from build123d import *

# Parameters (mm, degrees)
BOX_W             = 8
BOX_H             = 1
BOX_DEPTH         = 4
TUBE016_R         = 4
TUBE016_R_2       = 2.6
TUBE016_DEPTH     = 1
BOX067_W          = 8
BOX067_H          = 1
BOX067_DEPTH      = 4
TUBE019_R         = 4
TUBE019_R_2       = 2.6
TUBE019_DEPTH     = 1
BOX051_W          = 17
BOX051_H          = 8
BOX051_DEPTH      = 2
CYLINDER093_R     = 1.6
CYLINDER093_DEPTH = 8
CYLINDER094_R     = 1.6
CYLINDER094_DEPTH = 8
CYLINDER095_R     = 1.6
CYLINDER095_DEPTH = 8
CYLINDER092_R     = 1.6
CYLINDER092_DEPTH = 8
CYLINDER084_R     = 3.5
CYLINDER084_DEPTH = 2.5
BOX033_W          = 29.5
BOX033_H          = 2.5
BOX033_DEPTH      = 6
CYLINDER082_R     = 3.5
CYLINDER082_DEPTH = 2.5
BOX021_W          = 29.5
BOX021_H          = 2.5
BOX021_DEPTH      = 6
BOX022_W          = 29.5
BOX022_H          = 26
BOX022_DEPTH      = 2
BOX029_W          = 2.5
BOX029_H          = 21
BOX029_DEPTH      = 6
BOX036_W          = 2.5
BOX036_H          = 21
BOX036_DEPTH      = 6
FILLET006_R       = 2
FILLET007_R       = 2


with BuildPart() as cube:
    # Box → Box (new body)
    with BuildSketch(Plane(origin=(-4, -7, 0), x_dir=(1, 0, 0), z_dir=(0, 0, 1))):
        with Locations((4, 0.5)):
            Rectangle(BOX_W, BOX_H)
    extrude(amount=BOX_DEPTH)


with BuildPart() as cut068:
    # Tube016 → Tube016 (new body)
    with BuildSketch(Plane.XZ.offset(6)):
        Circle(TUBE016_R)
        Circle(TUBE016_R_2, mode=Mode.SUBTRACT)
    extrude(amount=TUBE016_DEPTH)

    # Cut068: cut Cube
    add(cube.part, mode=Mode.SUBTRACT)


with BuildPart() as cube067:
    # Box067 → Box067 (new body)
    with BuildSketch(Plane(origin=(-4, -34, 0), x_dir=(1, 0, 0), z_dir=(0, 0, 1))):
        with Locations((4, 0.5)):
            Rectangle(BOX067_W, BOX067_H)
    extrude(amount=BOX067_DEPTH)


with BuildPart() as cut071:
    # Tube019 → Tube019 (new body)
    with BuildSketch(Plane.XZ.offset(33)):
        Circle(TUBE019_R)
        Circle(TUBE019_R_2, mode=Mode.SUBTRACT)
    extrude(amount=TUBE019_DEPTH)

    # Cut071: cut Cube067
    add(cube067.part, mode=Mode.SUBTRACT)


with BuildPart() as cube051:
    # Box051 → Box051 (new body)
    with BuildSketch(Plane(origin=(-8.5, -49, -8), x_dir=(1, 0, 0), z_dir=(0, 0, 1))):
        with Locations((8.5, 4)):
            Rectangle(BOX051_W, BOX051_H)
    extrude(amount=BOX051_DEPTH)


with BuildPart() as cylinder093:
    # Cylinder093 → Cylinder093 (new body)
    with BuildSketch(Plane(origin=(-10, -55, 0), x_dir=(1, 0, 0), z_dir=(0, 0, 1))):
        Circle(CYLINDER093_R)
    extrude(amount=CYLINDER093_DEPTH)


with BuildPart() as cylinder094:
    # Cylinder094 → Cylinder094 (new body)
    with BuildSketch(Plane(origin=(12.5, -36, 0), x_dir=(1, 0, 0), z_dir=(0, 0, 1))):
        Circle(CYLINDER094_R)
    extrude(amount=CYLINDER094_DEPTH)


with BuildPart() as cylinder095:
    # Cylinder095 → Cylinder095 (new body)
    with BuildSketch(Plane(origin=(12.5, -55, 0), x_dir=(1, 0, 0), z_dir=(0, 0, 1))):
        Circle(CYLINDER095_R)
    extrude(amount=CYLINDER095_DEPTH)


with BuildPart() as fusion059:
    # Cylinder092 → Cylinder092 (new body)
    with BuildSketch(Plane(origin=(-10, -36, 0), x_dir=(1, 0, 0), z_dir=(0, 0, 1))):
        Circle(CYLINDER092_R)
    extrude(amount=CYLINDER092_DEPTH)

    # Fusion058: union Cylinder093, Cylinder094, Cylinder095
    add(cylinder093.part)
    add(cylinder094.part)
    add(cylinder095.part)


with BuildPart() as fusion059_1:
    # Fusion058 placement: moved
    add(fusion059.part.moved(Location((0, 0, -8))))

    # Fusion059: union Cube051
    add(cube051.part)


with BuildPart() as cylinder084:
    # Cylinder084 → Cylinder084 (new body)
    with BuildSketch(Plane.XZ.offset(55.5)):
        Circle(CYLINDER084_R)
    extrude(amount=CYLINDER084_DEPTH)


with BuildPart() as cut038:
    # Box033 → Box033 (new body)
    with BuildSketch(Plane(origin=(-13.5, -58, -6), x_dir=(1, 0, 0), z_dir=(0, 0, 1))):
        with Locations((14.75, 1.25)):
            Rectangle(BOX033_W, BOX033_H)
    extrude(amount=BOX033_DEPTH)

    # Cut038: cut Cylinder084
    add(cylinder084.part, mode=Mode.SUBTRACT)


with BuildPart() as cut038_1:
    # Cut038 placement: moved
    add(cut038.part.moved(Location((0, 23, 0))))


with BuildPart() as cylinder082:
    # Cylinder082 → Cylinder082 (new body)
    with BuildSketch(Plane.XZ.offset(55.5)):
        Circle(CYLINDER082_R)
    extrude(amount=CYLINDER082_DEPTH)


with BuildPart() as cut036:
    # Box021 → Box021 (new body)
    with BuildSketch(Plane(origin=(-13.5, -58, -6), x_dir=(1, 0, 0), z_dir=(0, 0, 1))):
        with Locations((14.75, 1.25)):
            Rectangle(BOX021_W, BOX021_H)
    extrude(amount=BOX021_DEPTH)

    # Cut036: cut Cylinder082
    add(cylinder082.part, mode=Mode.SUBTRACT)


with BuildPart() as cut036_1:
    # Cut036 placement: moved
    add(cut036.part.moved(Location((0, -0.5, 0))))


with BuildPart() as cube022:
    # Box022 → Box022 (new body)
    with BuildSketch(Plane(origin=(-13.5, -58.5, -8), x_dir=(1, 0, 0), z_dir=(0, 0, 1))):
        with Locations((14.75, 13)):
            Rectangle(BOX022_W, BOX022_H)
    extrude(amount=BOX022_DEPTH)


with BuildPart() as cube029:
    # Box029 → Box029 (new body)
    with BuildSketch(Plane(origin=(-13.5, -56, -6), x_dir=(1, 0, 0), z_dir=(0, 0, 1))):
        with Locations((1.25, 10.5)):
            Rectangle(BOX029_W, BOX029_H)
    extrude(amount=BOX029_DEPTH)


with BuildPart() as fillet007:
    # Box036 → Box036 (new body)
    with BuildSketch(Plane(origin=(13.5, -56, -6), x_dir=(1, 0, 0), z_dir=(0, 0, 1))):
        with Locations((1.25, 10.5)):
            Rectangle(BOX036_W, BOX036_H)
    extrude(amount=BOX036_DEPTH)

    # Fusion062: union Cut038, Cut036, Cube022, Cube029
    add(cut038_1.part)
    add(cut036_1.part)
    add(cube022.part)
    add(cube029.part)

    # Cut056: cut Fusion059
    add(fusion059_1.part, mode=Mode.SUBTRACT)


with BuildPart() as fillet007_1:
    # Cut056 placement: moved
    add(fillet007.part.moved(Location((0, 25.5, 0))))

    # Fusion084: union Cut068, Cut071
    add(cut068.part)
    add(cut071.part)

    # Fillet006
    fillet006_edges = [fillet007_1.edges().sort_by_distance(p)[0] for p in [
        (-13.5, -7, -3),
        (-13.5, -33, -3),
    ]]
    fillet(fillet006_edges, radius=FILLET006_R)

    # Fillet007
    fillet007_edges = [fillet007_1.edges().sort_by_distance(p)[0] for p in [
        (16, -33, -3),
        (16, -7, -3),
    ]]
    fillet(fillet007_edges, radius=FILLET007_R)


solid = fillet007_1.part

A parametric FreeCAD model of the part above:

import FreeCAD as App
import Part
import Sketcher

V = App.Vector


def edges_at(feature, points):
    """Names of the edges that pass closest to the given points."""
    edges = feature.Shape.Edges
    near = lambda p: min(range(len(edges)), key=lambda i: edges[i].distToShape(Part.Vertex(*p))[0])
    return sorted({f"Edge{near(p) + 1}" for p in points})


def add_polygon(sketch, points):
    """Adds a closed chain of lines whose ends are joined by coincident constraints."""
    first, n = sketch.GeometryCount, len(points)
    for a, b in zip(points, points[1:] + points[:1]):
        sketch.addGeometry(Part.LineSegment(App.Vector(*a, 0), App.Vector(*b, 0)), False)
    for i in range(n):
        sketch.addConstraint(Sketcher.Constraint("Coincident", first + i, 2, first + (i + 1) % n, 1))

doc = App.newDocument("Part")
body = doc.addObject("PartDesign::Body", "Body")

# Sketch on XY plane
sketch1 = doc.addObject("Sketcher::SketchObject", "Sketch")
body.addObject(sketch1)
sketch1.AttachmentSupport = (doc.XY_Plane, [""])
sketch1.MapMode = "FlatFace"
add_polygon(sketch1, [(-4, -6), (-4, -7), (4, -7), (4, -6)])  # lines 0-3
sketch1.addConstraint([
    Sketcher.Constraint("Vertical", 0),
    Sketcher.Constraint("Horizontal", 1),
    Sketcher.Constraint("Vertical", 2),
    Sketcher.Constraint("Horizontal", 3),
    Sketcher.Constraint("DistanceX", 1, 1, 1, 2, 8.0),
    Sketcher.Constraint("DistanceY", 0, 2, 0, 1, 1.0),
    Sketcher.Constraint("DistanceX", 0, 2, -1, 1, 4.0),
    Sketcher.Constraint("DistanceY", 0, 2, -1, 1, 7.0),
])
pad1 = doc.addObject("PartDesign::Pad", "Pad")
body.addObject(pad1)
pad1.Profile = sketch1
pad1.Length = 4
body2 = doc.addObject("PartDesign::Body", "Body001")

# Sketch on XZ plane
sketch2 = doc.addObject("Sketcher::SketchObject", "Sketch001")
body2.addObject(sketch2)
sketch2.AttachmentSupport = (doc.getObject("XZ_Plane001"), [""])
sketch2.MapMode = "FlatFace"
sketch2.AttachmentOffset = App.Placement(V(0, 0, 6), App.Rotation())
sketch2.addGeometry([
    Part.Circle(V(0, 0, 0), V(0, 0, 1), 4),
    Part.Circle(V(0, 0, 0), V(0, 0, 1), 2.6),
], False)
sketch2.addConstraint([
    Sketcher.Constraint("Coincident", 0, 3, -1, 1),
    Sketcher.Constraint("Coincident", 1, 3, -1, 1),
    Sketcher.Constraint("Diameter", 0, 8.0),
    Sketcher.Constraint("Diameter", 1, 5.2),
])
pad2 = doc.addObject("PartDesign::Pad", "Pad001")
body2.addObject(pad2)
pad2.Profile = sketch2
pad2.Length = 1
doc.recompute()

boolean = doc.addObject("PartDesign::Boolean", "Boolean")
body2.addObject(boolean)
boolean.Type = "Cut"
boolean.addObjects([body])
body3 = doc.addObject("PartDesign::Body", "Body002")

# Sketch on XY plane
sketch3 = doc.addObject("Sketcher::SketchObject", "Sketch002")
body3.addObject(sketch3)
sketch3.AttachmentSupport = (doc.getObject("XY_Plane002"), [""])
sketch3.MapMode = "FlatFace"
add_polygon(sketch3, [(-4, -33), (-4, -34), (4, -34), (4, -33)])  # lines 0-3
sketch3.addConstraint([
    Sketcher.Constraint("Vertical", 0),
    Sketcher.Constraint("Horizontal", 1),
    Sketcher.Constraint("Vertical", 2),
    Sketcher.Constraint("Horizontal", 3),
    Sketcher.Constraint("DistanceX", 1, 1, 1, 2, 8.0),
    Sketcher.Constraint("DistanceY", 0, 2, 0, 1, 1.0),
    Sketcher.Constraint("DistanceX", 0, 2, -1, 1, 4.0),
    Sketcher.Constraint("DistanceY", 0, 2, -1, 1, 34.0),
])
pad3 = doc.addObject("PartDesign::Pad", "Pad002")
body3.addObject(pad3)
pad3.Profile = sketch3
pad3.Length = 4
body4 = doc.addObject("PartDesign::Body", "Body003")

# Sketch on XZ plane
sketch4 = doc.addObject("Sketcher::SketchObject", "Sketch003")
body4.addObject(sketch4)
sketch4.AttachmentSupport = (doc.getObject("XZ_Plane003"), [""])
sketch4.MapMode = "FlatFace"
sketch4.AttachmentOffset = App.Placement(V(0, 0, 33), App.Rotation())
sketch4.addGeometry([
    Part.Circle(V(0, 0, 0), V(0, 0, 1), 4),
    Part.Circle(V(0, 0, 0), V(0, 0, 1), 2.6),
], False)
sketch4.addConstraint([
    Sketcher.Constraint("Coincident", 0, 3, -1, 1),
    Sketcher.Constraint("Coincident", 1, 3, -1, 1),
    Sketcher.Constraint("Diameter", 0, 8.0),
    Sketcher.Constraint("Diameter", 1, 5.2),
])
pad4 = doc.addObject("PartDesign::Pad", "Pad003")
body4.addObject(pad4)
pad4.Profile = sketch4
pad4.Length = 1
doc.recompute()

boolean2 = doc.addObject("PartDesign::Boolean", "Boolean001")
body4.addObject(boolean2)
boolean2.Type = "Cut"
boolean2.addObjects([body3])
body5 = doc.addObject("PartDesign::Body", "Body004")

# Sketch on XY plane
sketch5 = doc.addObject("Sketcher::SketchObject", "Sketch004")
body5.addObject(sketch5)
sketch5.AttachmentSupport = (doc.getObject("XY_Plane004"), [""])
sketch5.MapMode = "FlatFace"
sketch5.AttachmentOffset = App.Placement(V(0, 0, -8), App.Rotation())
add_polygon(sketch5, [(-8, -41), (-8, -49), (8, -49), (8, -41)])  # lines 0-3
sketch5.addConstraint([
    Sketcher.Constraint("Vertical", 0),
    Sketcher.Constraint("Horizontal", 1),
    Sketcher.Constraint("Vertical", 2),
    Sketcher.Constraint("Horizontal", 3),
    Sketcher.Constraint("DistanceX", 1, 1, 1, 2, 17.0),
    Sketcher.Constraint("DistanceY", 0, 2, 0, 1, 8.0),
    Sketcher.Constraint("DistanceY", 0, 2, -1, 1, 49.0),
    Sketcher.Constraint("DistanceX", 0, 2, -1, 1, 8.5),
])
pad5 = doc.addObject("PartDesign::Pad", "Pad004")
body5.addObject(pad5)
pad5.Profile = sketch5
pad5.Length = 2
body6 = doc.addObject("PartDesign::Body", "Body005")

# Sketch on XY plane
sketch6 = doc.addObject("Sketcher::SketchObject", "Sketch005")
body6.addObject(sketch6)
sketch6.AttachmentSupport = (doc.getObject("XY_Plane005"), [""])
sketch6.MapMode = "FlatFace"
sketch6.addGeometry(Part.Circle(V(-10, -55, 0), V(0, 0, 1), 1.6), False)
sketch6.addConstraint([
    Sketcher.Constraint("Diameter", 0, 3.2),
    Sketcher.Constraint("DistanceX", 0, 3, -1, 1, 10.0),
    Sketcher.Constraint("DistanceY", 0, 3, -1, 1, 55.0),
])
pad6 = doc.addObject("PartDesign::Pad", "Pad005")
body6.addObject(pad6)
pad6.Profile = sketch6
pad6.Length = 8
body7 = doc.addObject("PartDesign::Body", "Body006")

# Sketch on XY plane
sketch7 = doc.addObject("Sketcher::SketchObject", "Sketch006")
body7.addObject(sketch7)
sketch7.AttachmentSupport = (doc.getObject("XY_Plane006"), [""])
sketch7.MapMode = "FlatFace"
sketch7.addGeometry(Part.Circle(V(12.5, -36, 0), V(0, 0, 1), 1.6), False)
sketch7.addConstraint([
    Sketcher.Constraint("Diameter", 0, 3.2),
    Sketcher.Constraint("DistanceY", 0, 3, -1, 1, 36.0),
    Sketcher.Constraint("DistanceX", -1, 1, 0, 3, 12.5),
])
pad7 = doc.addObject("PartDesign::Pad", "Pad006")
body7.addObject(pad7)
pad7.Profile = sketch7
pad7.Length = 8
body8 = doc.addObject("PartDesign::Body", "Body007")

# Sketch on XY plane
sketch8 = doc.addObject("Sketcher::SketchObject", "Sketch007")
body8.addObject(sketch8)
sketch8.AttachmentSupport = (doc.getObject("XY_Plane007"), [""])
sketch8.MapMode = "FlatFace"
sketch8.addGeometry(Part.Circle(V(12.5, -55, 0), V(0, 0, 1), 1.6), False)
sketch8.addConstraint([
    Sketcher.Constraint("Diameter", 0, 3.2),
    Sketcher.Constraint("DistanceY", 0, 3, -1, 1, 55.0),
    Sketcher.Constraint("DistanceX", -1, 1, 0, 3, 12.5),
])
pad8 = doc.addObject("PartDesign::Pad", "Pad007")
body8.addObject(pad8)
pad8.Profile = sketch8
pad8.Length = 8
body9 = doc.addObject("PartDesign::Body", "Body008")
body9.AllowCompound = True

# Sketch on XY plane
sketch9 = doc.addObject("Sketcher::SketchObject", "Sketch008")
body9.addObject(sketch9)
sketch9.AttachmentSupport = (doc.getObject("XY_Plane008"), [""])
sketch9.MapMode = "FlatFace"
sketch9.addGeometry(Part.Circle(V(-10, -36, 0), V(0, 0, 1), 1.6), False)
sketch9.addConstraint([
    Sketcher.Constraint("Diameter", 0, 3.2),
    Sketcher.Constraint("DistanceX", 0, 3, -1, 1, 10.0),
    Sketcher.Constraint("DistanceY", 0, 3, -1, 1, 36.0),
])
pad9 = doc.addObject("PartDesign::Pad", "Pad008")
body9.addObject(pad9)
pad9.Profile = sketch9
pad9.Length = 8
doc.recompute()

boolean3 = doc.addObject("PartDesign::Boolean", "Boolean002")
body9.addObject(boolean3)
boolean3.Type = "Fuse"
boolean3.addObjects([body6])
doc.recompute()

boolean4 = doc.addObject("PartDesign::Boolean", "Boolean003")
body9.addObject(boolean4)
boolean4.Type = "Fuse"
boolean4.addObjects([body7])
doc.recompute()

boolean5 = doc.addObject("PartDesign::Boolean", "Boolean004")
body9.addObject(boolean5)
boolean5.Type = "Fuse"
boolean5.addObjects([body8])
body10 = doc.addObject("PartDesign::Body", "Body009")
body10.AllowCompound = True
doc.recompute()

body9.Placement = App.Placement(V(0, 0, -8), App.Rotation(V(0, 0, 1), 0))
boolean6 = doc.addObject("PartDesign::Boolean", "Boolean005")
body10.addObject(boolean6)
boolean6.Type = "Fuse"
boolean6.addObjects([body9])
doc.recompute()

boolean7 = doc.addObject("PartDesign::Boolean", "Boolean006")
body10.addObject(boolean7)
boolean7.Type = "Fuse"
boolean7.addObjects([body5])
body11 = doc.addObject("PartDesign::Body", "Body010")

# Sketch on XZ plane
sketch10 = doc.addObject("Sketcher::SketchObject", "Sketch009")
body11.addObject(sketch10)
sketch10.AttachmentSupport = (doc.getObject("XZ_Plane010"), [""])
sketch10.MapMode = "FlatFace"
sketch10.AttachmentOffset = App.Placement(V(0, 0, 55.5), App.Rotation())
sketch10.addGeometry(Part.Circle(V(0, 0, 0), V(0, 0, 1), 3.5), False)
sketch10.addConstraint([
    Sketcher.Constraint("Coincident", 0, 3, -1, 1),
    Sketcher.Constraint("Diameter", 0, 7.0),
])
pad10 = doc.addObject("PartDesign::Pad", "Pad009")
body11.addObject(pad10)
pad10.Profile = sketch10
pad10.Length = 2.5
body12 = doc.addObject("PartDesign::Body", "Body011")

# Sketch on XY plane
sketch11 = doc.addObject("Sketcher::SketchObject", "Sketch010")
body12.addObject(sketch11)
sketch11.AttachmentSupport = (doc.getObject("XY_Plane011"), [""])
sketch11.MapMode = "FlatFace"
sketch11.AttachmentOffset = App.Placement(V(0, 0, -6), App.Rotation())
add_polygon(sketch11, [(-13.5, -55.5), (-13.5, -58), (16, -58), (16, -55.5)])  # lines 0-3
sketch11.addConstraint([
    Sketcher.Constraint("Vertical", 0),
    Sketcher.Constraint("Horizontal", 1),
    Sketcher.Constraint("Vertical", 2),
    Sketcher.Constraint("Horizontal", 3),
    Sketcher.Constraint("DistanceX", 1, 1, 1, 2, 29.5),
    Sketcher.Constraint("DistanceY", 0, 2, 0, 1, 2.5),
    Sketcher.Constraint("DistanceY", 0, 2, -1, 1, 58.0),
    Sketcher.Constraint("DistanceX", -1, 1, 1, 2, 16.0),
])
pad11 = doc.addObject("PartDesign::Pad", "Pad010")
body12.addObject(pad11)
pad11.Profile = sketch11
pad11.Length = 6
doc.recompute()

boolean8 = doc.addObject("PartDesign::Boolean", "Boolean007")
body12.addObject(boolean8)
boolean8.Type = "Cut"
boolean8.addObjects([body11])
body13 = doc.addObject("PartDesign::Body", "Body012")
doc.recompute()

body12.Placement = App.Placement(V(0, 23, 0), App.Rotation(V(0, 0, 1), 0))
boolean9 = doc.addObject("PartDesign::Boolean", "Boolean008")
body13.addObject(boolean9)
boolean9.Type = "Fuse"
boolean9.addObjects([body12])
body14 = doc.addObject("PartDesign::Body", "Body013")

# Sketch on XZ plane
sketch12 = doc.addObject("Sketcher::SketchObject", "Sketch011")
body14.addObject(sketch12)
sketch12.AttachmentSupport = (doc.getObject("XZ_Plane013"), [""])
sketch12.MapMode = "FlatFace"
sketch12.AttachmentOffset = App.Placement(V(0, 0, 55.5), App.Rotation())
sketch12.addGeometry(Part.Circle(V(0, 0, 0), V(0, 0, 1), 3.5), False)
sketch12.addConstraint([
    Sketcher.Constraint("Coincident", 0, 3, -1, 1),
    Sketcher.Constraint("Diameter", 0, 7.0),
])
pad12 = doc.addObject("PartDesign::Pad", "Pad011")
body14.addObject(pad12)
pad12.Profile = sketch12
pad12.Length = 2.5
body15 = doc.addObject("PartDesign::Body", "Body014")

# Sketch on XY plane
sketch13 = doc.addObject("Sketcher::SketchObject", "Sketch012")
body15.addObject(sketch13)
sketch13.AttachmentSupport = (doc.getObject("XY_Plane014"), [""])
sketch13.MapMode = "FlatFace"
sketch13.AttachmentOffset = App.Placement(V(0, 0, -6), App.Rotation())
add_polygon(sketch13, [(-13.5, -55.5), (-13.5, -58), (16, -58), (16, -55.5)])  # lines 0-3
sketch13.addConstraint([
    Sketcher.Constraint("Vertical", 0),
    Sketcher.Constraint("Horizontal", 1),
    Sketcher.Constraint("Vertical", 2),
    Sketcher.Constraint("Horizontal", 3),
    Sketcher.Constraint("DistanceX", 1, 1, 1, 2, 29.5),
    Sketcher.Constraint("DistanceY", 0, 2, 0, 1, 2.5),
    Sketcher.Constraint("DistanceY", 0, 2, -1, 1, 58.0),
    Sketcher.Constraint("DistanceX", -1, 1, 1, 2, 16.0),
])
pad13 = doc.addObject("PartDesign::Pad", "Pad012")
body15.addObject(pad13)
pad13.Profile = sketch13
pad13.Length = 6
doc.recompute()

boolean10 = doc.addObject("PartDesign::Boolean", "Boolean009")
body15.addObject(boolean10)
boolean10.Type = "Cut"
boolean10.addObjects([body14])
body16 = doc.addObject("PartDesign::Body", "Body015")
doc.recompute()

body15.Placement = App.Placement(V(0, -0.5, 0), App.Rotation(V(0, 0, 1), 0))
boolean11 = doc.addObject("PartDesign::Boolean", "Boolean010")
body16.addObject(boolean11)
boolean11.Type = "Fuse"
boolean11.addObjects([body15])
body17 = doc.addObject("PartDesign::Body", "Body016")

# Sketch on XY plane
sketch14 = doc.addObject("Sketcher::SketchObject", "Sketch013")
body17.addObject(sketch14)
sketch14.AttachmentSupport = (doc.getObject("XY_Plane016"), [""])
sketch14.MapMode = "FlatFace"
sketch14.AttachmentOffset = App.Placement(V(0, 0, -8), App.Rotation())
add_polygon(sketch14, [(-14, -32), (-14, -58), (16, -58), (16, -32)])  # lines 0-3
sketch14.addConstraint([
    Sketcher.Constraint("Vertical", 0),
    Sketcher.Constraint("Horizontal", 1),
    Sketcher.Constraint("Vertical", 2),
    Sketcher.Constraint("Horizontal", 3),
    Sketcher.Constraint("DistanceY", 0, 2, 0, 1, 26.0),
    Sketcher.Constraint("DistanceX", 1, 1, 1, 2, 29.5),
    Sketcher.Constraint("DistanceX", -1, 1, 1, 2, 16.0),
    Sketcher.Constraint("DistanceY", 0, 2, -1, 1, 58.5),
])
pad14 = doc.addObject("PartDesign::Pad", "Pad013")
body17.addObject(pad14)
pad14.Profile = sketch14
pad14.Length = 2
body18 = doc.addObject("PartDesign::Body", "Body017")

# Sketch on XY plane
sketch15 = doc.addObject("Sketcher::SketchObject", "Sketch014")
body18.addObject(sketch15)
sketch15.AttachmentSupport = (doc.getObject("XY_Plane017"), [""])
sketch15.MapMode = "FlatFace"
sketch15.AttachmentOffset = App.Placement(V(0, 0, -6), App.Rotation())
add_polygon(sketch15, [(-13.5, -35), (-13.5, -56), (-11, -56), (-11, -35)])  # lines 0-3
sketch15.addConstraint([
    Sketcher.Constraint("Vertical", 0),
    Sketcher.Constraint("Horizontal", 1),
    Sketcher.Constraint("Vertical", 2),
    Sketcher.Constraint("Horizontal", 3),
    Sketcher.Constraint("DistanceY", 0, 2, 0, 1, 21.0),
    Sketcher.Constraint("DistanceX", 1, 1, 1, 2, 2.5),
    Sketcher.Constraint("DistanceY", 0, 2, -1, 1, 56.0),
    Sketcher.Constraint("DistanceX", 1, 2, -1, 1, 11.0),
])
pad15 = doc.addObject("PartDesign::Pad", "Pad014")
body18.addObject(pad15)
pad15.Profile = sketch15
pad15.Length = 6
body19 = doc.addObject("PartDesign::Body", "Body018")

# Sketch on XY plane
sketch16 = doc.addObject("Sketcher::SketchObject", "Sketch015")
body19.addObject(sketch16)
sketch16.AttachmentSupport = (doc.getObject("XY_Plane018"), [""])
sketch16.MapMode = "FlatFace"
sketch16.AttachmentOffset = App.Placement(V(0, 0, -6), App.Rotation())
add_polygon(sketch16, [(13.5, -35), (13.5, -56), (16, -56), (16, -35)])  # lines 0-3
sketch16.addConstraint([
    Sketcher.Constraint("Vertical", 0),
    Sketcher.Constraint("Horizontal", 1),
    Sketcher.Constraint("Vertical", 2),
    Sketcher.Constraint("Horizontal", 3),
    Sketcher.Constraint("DistanceY", 0, 2, 0, 1, 21.0),
    Sketcher.Constraint("DistanceX", 1, 1, 1, 2, 2.5),
    Sketcher.Constraint("DistanceY", 0, 2, -1, 1, 56.0),
    Sketcher.Constraint("DistanceX", -1, 1, 1, 2, 16.0),
])
pad16 = doc.addObject("PartDesign::Pad", "Pad015")
body19.addObject(pad16)
pad16.Profile = sketch16
pad16.Length = 6
doc.recompute()

boolean12 = doc.addObject("PartDesign::Boolean", "Boolean011")
body19.addObject(boolean12)
boolean12.Type = "Fuse"
boolean12.addObjects([body13])
doc.recompute()

boolean13 = doc.addObject("PartDesign::Boolean", "Boolean012")
body19.addObject(boolean13)
boolean13.Type = "Fuse"
boolean13.addObjects([body16])
doc.recompute()

boolean14 = doc.addObject("PartDesign::Boolean", "Boolean013")
body19.addObject(boolean14)
boolean14.Type = "Fuse"
boolean14.addObjects([body17])
doc.recompute()

boolean15 = doc.addObject("PartDesign::Boolean", "Boolean014")
body19.addObject(boolean15)
boolean15.Type = "Fuse"
boolean15.addObjects([body18])
doc.recompute()

boolean16 = doc.addObject("PartDesign::Boolean", "Boolean015")
body19.addObject(boolean16)
boolean16.Type = "Cut"
boolean16.addObjects([body10])
body20 = doc.addObject("PartDesign::Body", "Body019")
doc.recompute()

body19.Placement = App.Placement(V(0, 25.5, 0), App.Rotation(V(0, 0, 1), 0))
boolean17 = doc.addObject("PartDesign::Boolean", "Boolean016")
body20.addObject(boolean17)
boolean17.Type = "Fuse"
boolean17.addObjects([body19])
doc.recompute()

boolean18 = doc.addObject("PartDesign::Boolean", "Boolean017")
body20.addObject(boolean18)
boolean18.Type = "Fuse"
boolean18.addObjects([body2])
doc.recompute()

boolean19 = doc.addObject("PartDesign::Boolean", "Boolean018")
body20.addObject(boolean19)
boolean19.Type = "Fuse"
boolean19.addObjects([body4])
doc.recompute()

fillet = doc.addObject("PartDesign::Fillet", "Fillet")
body20.addObject(fillet)
fillet.Base = (boolean19, edges_at(boolean19, [(-13.5, -7, -4), (-13.5, -33, -4)]))
fillet.Radius = 2
doc.recompute()

fillet2 = doc.addObject("PartDesign::Fillet", "Fillet001")
body20.addObject(fillet2)
fillet2.Base = (fillet, edges_at(fillet, [(16, -33, -4), (16, -7, -4)]))
fillet2.Radius = 2

doc.recompute()
